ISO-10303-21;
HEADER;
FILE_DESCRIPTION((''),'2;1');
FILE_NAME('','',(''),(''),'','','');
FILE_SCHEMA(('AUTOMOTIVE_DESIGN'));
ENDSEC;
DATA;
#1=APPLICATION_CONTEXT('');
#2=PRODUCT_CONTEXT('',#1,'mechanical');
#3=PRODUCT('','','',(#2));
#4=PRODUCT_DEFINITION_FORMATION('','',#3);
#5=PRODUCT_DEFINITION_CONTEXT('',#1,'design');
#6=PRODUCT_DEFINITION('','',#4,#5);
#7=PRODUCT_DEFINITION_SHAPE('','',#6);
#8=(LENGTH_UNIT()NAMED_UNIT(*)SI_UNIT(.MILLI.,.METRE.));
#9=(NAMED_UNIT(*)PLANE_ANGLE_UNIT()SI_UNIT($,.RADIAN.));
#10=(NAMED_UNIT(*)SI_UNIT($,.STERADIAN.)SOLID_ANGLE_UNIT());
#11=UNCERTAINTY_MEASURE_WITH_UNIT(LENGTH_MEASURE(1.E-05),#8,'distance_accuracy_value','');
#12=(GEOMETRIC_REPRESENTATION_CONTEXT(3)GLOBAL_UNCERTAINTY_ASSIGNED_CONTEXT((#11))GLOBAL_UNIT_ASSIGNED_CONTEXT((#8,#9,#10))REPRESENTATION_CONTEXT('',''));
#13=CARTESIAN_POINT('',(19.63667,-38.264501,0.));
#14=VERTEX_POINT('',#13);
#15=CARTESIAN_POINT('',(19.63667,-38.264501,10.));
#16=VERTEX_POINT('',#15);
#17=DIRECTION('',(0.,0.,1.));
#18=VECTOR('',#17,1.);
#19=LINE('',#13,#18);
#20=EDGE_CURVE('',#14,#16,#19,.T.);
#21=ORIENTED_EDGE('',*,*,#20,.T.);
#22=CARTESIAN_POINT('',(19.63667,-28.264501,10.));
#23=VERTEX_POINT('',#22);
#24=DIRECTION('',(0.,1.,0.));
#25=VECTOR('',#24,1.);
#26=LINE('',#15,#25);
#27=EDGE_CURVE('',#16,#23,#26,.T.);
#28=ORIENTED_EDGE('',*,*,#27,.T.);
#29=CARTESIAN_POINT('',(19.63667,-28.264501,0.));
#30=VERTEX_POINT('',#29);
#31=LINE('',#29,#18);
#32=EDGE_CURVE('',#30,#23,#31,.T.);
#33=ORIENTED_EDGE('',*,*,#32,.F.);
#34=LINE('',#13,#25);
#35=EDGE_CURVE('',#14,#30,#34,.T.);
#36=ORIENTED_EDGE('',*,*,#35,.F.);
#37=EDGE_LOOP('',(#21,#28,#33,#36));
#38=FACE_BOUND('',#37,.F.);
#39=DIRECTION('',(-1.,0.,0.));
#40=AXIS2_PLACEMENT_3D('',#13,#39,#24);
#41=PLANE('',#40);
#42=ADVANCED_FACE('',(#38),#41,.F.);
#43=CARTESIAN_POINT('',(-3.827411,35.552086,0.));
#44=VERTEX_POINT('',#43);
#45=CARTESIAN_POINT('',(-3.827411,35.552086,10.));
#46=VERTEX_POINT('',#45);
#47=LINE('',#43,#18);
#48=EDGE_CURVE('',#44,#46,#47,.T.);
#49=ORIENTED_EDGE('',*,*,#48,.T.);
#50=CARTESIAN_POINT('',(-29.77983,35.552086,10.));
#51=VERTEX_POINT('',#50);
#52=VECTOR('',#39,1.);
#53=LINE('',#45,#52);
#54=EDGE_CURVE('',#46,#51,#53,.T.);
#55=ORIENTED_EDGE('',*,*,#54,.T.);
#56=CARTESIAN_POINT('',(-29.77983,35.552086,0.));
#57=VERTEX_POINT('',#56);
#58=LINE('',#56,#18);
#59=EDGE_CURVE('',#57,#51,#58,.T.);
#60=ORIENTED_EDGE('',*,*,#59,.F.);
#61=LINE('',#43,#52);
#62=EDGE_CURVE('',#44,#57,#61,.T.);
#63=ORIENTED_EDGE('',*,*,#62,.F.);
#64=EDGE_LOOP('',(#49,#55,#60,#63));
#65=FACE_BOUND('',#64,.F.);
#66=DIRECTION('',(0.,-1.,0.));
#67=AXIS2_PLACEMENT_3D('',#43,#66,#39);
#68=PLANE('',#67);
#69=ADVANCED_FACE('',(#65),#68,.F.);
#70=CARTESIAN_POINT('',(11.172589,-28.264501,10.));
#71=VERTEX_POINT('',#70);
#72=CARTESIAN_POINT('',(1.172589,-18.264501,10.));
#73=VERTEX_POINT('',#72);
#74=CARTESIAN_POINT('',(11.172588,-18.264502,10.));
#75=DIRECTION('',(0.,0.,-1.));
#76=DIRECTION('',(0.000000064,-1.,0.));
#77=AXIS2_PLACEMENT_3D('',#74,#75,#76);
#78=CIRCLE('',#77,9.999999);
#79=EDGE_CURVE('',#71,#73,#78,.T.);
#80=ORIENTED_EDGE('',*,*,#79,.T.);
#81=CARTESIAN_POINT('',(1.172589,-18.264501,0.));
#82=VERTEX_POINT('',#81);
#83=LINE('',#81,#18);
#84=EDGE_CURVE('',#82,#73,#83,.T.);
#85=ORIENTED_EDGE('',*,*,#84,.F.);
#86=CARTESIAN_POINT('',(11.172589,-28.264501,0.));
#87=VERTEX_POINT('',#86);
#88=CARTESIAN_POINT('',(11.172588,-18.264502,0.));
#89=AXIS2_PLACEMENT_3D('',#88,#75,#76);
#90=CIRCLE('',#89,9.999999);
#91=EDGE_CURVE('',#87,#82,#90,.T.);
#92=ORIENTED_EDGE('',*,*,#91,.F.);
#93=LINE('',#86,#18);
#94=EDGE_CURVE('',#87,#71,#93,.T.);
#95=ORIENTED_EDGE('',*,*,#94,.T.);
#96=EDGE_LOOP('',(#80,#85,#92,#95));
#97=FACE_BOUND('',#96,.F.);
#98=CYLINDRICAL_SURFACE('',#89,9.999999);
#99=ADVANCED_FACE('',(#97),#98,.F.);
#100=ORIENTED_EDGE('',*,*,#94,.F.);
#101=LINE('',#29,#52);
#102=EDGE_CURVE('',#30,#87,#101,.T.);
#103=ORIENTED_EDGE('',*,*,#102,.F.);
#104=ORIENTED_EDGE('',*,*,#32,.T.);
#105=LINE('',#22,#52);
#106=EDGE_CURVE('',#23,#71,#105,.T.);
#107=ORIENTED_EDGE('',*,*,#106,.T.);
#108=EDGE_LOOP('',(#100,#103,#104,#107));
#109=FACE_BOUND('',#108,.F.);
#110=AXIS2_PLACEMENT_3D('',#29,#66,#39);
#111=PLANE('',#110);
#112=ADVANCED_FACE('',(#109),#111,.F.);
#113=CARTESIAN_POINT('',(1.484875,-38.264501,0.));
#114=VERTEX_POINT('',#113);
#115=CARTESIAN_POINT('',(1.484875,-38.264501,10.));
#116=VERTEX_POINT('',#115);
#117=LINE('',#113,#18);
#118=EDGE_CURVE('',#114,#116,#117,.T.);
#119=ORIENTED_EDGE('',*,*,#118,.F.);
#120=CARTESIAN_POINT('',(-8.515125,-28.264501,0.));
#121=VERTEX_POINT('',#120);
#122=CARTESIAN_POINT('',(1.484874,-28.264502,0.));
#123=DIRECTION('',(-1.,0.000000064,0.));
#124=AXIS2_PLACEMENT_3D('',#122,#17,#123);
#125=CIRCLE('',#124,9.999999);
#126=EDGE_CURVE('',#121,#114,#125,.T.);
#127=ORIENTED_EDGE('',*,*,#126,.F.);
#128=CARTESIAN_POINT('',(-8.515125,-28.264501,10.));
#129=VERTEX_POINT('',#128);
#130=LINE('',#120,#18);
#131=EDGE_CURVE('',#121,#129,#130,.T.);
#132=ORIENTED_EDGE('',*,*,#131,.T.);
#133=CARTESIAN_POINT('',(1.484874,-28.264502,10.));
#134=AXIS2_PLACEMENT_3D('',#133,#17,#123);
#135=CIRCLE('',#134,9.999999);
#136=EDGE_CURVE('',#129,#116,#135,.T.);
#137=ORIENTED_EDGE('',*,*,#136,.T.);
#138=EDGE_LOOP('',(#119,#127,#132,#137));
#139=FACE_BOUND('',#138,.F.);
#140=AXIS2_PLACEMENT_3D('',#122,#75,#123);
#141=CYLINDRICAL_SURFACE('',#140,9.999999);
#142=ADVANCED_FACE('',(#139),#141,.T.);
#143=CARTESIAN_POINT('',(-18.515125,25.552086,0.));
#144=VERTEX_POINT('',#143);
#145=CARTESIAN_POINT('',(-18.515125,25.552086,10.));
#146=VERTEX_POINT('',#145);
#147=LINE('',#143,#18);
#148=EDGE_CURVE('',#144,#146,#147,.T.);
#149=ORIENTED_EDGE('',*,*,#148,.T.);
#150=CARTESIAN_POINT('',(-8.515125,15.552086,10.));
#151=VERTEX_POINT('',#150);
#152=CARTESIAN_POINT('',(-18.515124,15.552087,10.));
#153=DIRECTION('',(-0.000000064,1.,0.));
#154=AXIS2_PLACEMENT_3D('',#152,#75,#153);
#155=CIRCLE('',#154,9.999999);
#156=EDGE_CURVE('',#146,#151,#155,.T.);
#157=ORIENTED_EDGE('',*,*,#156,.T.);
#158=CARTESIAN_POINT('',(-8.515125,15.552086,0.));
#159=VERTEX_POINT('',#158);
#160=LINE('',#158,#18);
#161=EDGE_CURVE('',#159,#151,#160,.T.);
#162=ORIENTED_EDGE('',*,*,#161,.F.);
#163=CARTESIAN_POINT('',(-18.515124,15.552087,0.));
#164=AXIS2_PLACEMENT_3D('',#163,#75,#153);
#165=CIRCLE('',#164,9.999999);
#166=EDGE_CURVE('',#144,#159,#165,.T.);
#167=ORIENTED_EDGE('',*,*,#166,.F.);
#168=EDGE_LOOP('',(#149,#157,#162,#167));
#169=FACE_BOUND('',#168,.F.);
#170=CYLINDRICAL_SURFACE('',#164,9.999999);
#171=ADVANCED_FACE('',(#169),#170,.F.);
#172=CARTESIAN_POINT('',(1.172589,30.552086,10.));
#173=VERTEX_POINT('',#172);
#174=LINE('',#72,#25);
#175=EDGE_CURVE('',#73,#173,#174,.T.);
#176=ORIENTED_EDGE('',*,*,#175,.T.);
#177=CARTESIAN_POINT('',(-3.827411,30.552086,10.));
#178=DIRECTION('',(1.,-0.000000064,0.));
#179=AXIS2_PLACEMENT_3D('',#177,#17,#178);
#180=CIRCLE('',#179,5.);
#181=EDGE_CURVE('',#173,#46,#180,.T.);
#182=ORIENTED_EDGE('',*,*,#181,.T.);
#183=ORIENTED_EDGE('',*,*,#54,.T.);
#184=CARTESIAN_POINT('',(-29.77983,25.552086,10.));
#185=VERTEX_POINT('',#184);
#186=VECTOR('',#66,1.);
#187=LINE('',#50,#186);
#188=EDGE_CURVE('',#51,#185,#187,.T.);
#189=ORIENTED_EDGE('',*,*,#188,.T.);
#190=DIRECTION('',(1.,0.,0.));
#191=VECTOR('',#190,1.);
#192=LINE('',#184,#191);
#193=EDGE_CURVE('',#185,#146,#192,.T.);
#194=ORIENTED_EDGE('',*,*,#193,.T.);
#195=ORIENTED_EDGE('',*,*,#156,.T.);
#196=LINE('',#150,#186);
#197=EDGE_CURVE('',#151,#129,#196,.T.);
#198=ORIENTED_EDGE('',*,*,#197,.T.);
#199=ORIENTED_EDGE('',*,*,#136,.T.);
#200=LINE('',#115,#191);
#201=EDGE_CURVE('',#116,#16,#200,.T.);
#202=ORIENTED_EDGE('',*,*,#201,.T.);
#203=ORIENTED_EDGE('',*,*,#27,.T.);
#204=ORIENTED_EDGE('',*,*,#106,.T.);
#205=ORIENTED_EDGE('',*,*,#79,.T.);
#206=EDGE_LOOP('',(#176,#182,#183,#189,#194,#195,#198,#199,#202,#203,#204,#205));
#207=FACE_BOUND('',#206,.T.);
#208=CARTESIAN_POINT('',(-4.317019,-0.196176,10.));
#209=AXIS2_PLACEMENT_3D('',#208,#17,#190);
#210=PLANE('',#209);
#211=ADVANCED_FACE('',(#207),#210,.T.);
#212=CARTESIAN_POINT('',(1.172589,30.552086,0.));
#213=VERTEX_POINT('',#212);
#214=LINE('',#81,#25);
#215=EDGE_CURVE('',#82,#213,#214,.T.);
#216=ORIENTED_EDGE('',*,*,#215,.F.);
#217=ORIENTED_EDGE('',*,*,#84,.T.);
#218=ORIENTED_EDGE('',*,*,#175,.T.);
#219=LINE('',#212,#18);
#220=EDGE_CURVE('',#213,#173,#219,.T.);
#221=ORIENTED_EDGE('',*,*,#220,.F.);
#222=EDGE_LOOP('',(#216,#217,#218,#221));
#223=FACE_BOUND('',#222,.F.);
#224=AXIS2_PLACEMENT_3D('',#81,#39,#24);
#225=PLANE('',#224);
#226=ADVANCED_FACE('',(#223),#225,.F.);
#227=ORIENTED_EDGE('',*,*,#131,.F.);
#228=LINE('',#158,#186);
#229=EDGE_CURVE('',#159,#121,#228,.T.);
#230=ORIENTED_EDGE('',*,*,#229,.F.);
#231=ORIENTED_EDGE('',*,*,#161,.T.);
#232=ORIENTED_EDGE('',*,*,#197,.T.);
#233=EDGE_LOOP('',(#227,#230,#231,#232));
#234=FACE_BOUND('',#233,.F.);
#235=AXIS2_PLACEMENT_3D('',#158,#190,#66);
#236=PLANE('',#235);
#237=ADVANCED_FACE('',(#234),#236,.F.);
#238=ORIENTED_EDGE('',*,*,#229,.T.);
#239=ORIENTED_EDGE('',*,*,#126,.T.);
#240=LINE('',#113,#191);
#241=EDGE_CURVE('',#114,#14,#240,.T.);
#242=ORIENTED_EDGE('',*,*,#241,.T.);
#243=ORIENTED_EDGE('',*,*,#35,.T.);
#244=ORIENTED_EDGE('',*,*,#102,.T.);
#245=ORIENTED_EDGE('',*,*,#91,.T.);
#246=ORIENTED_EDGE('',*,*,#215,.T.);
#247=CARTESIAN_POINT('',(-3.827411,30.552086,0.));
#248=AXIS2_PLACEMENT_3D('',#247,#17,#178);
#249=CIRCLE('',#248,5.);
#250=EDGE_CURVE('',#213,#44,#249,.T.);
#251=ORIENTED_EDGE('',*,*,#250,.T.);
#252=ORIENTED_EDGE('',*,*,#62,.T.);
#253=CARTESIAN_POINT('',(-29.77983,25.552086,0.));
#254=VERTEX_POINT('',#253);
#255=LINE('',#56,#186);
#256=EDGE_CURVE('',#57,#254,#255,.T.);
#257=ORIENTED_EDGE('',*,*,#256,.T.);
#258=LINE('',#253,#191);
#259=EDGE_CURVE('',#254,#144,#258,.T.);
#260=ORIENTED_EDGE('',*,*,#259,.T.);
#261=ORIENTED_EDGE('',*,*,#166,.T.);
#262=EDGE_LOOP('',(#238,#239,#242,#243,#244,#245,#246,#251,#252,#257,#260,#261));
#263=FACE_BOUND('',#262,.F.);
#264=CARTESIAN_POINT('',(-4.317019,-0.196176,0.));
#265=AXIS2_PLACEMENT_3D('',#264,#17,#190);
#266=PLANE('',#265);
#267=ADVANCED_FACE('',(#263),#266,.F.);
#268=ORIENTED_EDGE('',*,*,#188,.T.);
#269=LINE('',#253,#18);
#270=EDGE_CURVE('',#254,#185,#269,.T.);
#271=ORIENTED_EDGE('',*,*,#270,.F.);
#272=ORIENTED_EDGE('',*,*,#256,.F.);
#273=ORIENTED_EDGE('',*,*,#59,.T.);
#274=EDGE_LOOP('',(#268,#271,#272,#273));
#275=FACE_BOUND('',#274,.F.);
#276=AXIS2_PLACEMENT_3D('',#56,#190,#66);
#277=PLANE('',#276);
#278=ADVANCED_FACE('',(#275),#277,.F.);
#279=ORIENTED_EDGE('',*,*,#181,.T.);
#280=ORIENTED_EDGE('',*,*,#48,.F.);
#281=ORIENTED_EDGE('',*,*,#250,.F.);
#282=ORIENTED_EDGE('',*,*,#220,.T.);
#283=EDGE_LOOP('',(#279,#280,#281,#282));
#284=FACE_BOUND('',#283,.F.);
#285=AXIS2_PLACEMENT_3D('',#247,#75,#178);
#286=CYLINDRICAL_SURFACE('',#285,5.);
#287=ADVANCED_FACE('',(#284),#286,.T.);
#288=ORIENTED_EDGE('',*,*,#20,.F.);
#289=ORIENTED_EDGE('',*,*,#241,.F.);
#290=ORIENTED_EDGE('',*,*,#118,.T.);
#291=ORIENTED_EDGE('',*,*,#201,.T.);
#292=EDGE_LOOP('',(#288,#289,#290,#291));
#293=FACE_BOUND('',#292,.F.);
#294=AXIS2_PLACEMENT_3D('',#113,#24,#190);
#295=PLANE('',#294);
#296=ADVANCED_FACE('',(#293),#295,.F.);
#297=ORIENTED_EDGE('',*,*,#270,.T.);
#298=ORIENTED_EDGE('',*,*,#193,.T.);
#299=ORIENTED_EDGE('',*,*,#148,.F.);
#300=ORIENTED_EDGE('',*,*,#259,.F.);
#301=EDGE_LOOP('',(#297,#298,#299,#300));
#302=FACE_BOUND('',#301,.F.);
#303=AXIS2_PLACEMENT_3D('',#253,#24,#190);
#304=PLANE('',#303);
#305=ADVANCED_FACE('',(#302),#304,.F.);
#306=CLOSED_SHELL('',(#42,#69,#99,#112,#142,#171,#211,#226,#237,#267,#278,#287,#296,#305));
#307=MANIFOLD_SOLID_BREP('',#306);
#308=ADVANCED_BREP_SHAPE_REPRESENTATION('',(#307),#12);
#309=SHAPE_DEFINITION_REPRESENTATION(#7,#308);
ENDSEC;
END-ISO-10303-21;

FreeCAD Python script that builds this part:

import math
import FreeCAD as App
import Part
import Sketcher

V = App.Vector

doc = App.newDocument("Part")
body = doc.addObject("PartDesign::Body", "Body")

# Sketch on XY plane
sketch1 = doc.addObject("Sketcher::SketchObject", "Sketch")
body.addObject(sketch1)
sketch1.AttachmentSupport = (doc.XY_Plane, [""])
sketch1.MapMode = "FlatFace"
sketch1.addGeometry([
    Part.LineSegment(V(-3.8, 35.6, 0), V(-29.8, 35.6, 0)),  # 0
    Part.LineSegment(V(-29.8, 35.6, 0), V(-29.8, 25.6, 0)),  # 1
    Part.LineSegment(V(-29.8, 25.6, 0), V(-18.5, 25.6, 0)),  # 2
    Part.ArcOfCircle(Part.Circle(V(-18.5, 15.6, 0), V(0, 0, 1), 10), math.radians(0), math.radians(90)),  # 3
    Part.LineSegment(V(-8.5, 15.6, 0), V(-8.5, -28.3, 0)),  # 4
    Part.ArcOfCircle(Part.Circle(V(1.5, -28.3, 0), V(0, 0, 1), 10), math.radians(180), math.radians(270)),  # 5
    Part.LineSegment(V(1.5, -38.3, 0), V(19.6, -38.3, 0)),  # 6
    Part.LineSegment(V(19.6, -38.3, 0), V(19.6, -28.3, 0)),  # 7
    Part.LineSegment(V(19.6, -28.3, 0), V(11.2, -28.3, 0)),  # 8
    Part.ArcOfCircle(Part.Circle(V(11.2, -18.3, 0), V(0, 0, 1), 10), math.radians(180), math.radians(270)),  # 9
    Part.LineSegment(V(1.2, -18.3, 0), V(1.2, 30.6, 0)),  # 10
    Part.ArcOfCircle(Part.Circle(V(-3.8, 30.6, 0), V(0, 0, 1), 5), math.radians(0), math.radians(90)),  # 11
], False)
sketch1.addConstraint([
    Sketcher.Constraint("Coincident", 0, 2, 1, 1),
    Sketcher.Constraint("Coincident", 1, 2, 2, 1),
    Sketcher.Constraint("Tangent", 2, 2, 3, 2),
    Sketcher.Constraint("Tangent", 3, 1, 4, 1),
    Sketcher.Constraint("Tangent", 4, 2, 5, 1),
    Sketcher.Constraint("Tangent", 5, 2, 6, 1),
    Sketcher.Constraint("Coincident", 6, 2, 7, 1),
    Sketcher.Constraint("Coincident", 7, 2, 8, 1),
    Sketcher.Constraint("Tangent", 8, 2, 9, 2),
    Sketcher.Constraint("Tangent", 9, 1, 10, 1),
    Sketcher.Constraint("Tangent", 10, 2, 11, 1),
    Sketcher.Constraint("Tangent", 11, 2, 0, 1),
    Sketcher.Constraint("Horizontal", 0),
    Sketcher.Constraint("Vertical", 1),
    Sketcher.Constraint("Horizontal", 2),
    Sketcher.Constraint("Vertical", 4),
    Sketcher.Constraint("Horizontal", 6),
    Sketcher.Constraint("Vertical", 7),
    Sketcher.Constraint("Horizontal", 8),
    Sketcher.Constraint("Vertical", 10),
    Sketcher.Constraint("Equal", 3, 5),
    Sketcher.Constraint("Equal", 5, 9),
    Sketcher.Constraint("Horizontal", 4, 2, 7, 2),
    Sketcher.Constraint("Equal", 1, 7),
    Sketcher.Constraint("Radius", 3, 9.999999),
    Sketcher.Constraint("Radius", 11, 5.0),
    Sketcher.Constraint("DistanceX", 0, 2, 0, 1, 25.952419),
    Sketcher.Constraint("DistanceX", 8, 2, 8, 1, 8.464081),
    Sketcher.Constraint("DistanceY", 5, 3, -1, 1, 28.264502),
    Sketcher.Constraint("DistanceX", 2, 1, 2, 2, 11.264705),
    Sketcher.Constraint("DistanceY", 4, 2, 4, 1, 43.816587),
    Sketcher.Constraint("DistanceX", -1, 1, 9, 3, 11.172588),
])
pad1 = doc.addObject("PartDesign::Pad", "Pad")
body.addObject(pad1)
pad1.Profile = sketch1
pad1.Length = 10

doc.recompute()
